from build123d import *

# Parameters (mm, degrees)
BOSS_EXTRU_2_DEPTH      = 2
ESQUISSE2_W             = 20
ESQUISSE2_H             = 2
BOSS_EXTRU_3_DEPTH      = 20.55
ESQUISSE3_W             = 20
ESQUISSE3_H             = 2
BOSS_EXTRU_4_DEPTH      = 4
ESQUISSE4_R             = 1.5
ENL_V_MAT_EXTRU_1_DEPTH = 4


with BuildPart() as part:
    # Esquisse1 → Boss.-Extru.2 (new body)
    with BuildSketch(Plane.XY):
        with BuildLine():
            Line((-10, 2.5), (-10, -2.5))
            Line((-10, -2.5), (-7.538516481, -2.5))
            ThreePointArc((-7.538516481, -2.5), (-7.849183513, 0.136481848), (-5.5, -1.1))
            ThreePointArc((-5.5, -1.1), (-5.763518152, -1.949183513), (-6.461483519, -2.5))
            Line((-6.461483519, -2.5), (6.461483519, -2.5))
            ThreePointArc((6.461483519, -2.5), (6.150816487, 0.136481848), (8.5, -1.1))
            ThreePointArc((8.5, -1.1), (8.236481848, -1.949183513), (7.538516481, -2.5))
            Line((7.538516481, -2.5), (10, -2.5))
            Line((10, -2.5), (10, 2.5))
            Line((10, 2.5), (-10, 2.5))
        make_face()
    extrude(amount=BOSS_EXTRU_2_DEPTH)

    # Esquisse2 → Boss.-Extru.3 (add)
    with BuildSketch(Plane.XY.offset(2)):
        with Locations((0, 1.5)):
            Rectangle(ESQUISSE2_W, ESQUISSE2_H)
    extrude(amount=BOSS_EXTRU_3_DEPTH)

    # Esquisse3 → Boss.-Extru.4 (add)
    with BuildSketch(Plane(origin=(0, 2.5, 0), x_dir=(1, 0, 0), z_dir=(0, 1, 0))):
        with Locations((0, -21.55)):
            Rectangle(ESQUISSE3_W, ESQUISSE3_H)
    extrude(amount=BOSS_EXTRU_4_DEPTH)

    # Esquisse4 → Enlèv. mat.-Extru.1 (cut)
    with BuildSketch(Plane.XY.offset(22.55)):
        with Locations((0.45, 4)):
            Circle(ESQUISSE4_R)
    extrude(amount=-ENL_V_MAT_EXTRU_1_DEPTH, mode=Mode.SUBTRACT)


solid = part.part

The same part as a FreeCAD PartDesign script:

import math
import FreeCAD as App
import Part
import Sketcher
from FreeCAD import Vector
Q = App.Units.Quantity


def add_polygon(sketch, points):
    """Adds a closed chain of lines whose ends are joined by coincident constraints."""
    first, n = sketch.GeometryCount, len(points)
    for a, b in zip(points, points[1:] + points[:1]):
        sketch.addGeometry(Part.LineSegment(App.Vector(*a, 0), App.Vector(*b, 0)), False)
    for i in range(n):
        sketch.addConstraint(Sketcher.Constraint("Coincident", first + i, 2, first + (i + 1) % n, 1))

doc = App.newDocument("Part")
body = doc.addObject("PartDesign::Body", "Body")

sketch1 = body.newObject("Sketcher::SketchObject", "Sketch")
sketch1.AttachmentSupport = (doc.getObject("XY_Plane"), [""])
sketch1.MapMode = "FlatFace"
sketch1.addGeometry(Part.LineSegment(Vector(-10, 2.5, 0), Vector(-10, -2.5, 0)), False)
sketch1.addGeometry(Part.LineSegment(Vector(-10, -2.5, 0), Vector(-7.5, -2.5, 0)), False)
sketch1.addGeometry(Part.ArcOfCircle(Part.Circle(Vector(-7, -1.1, 0), Vector(0, 0, 1), 1.5), math.radians(0), math.radians(249)), False)
sketch1.addGeometry(Part.ArcOfCircle(Part.Circle(Vector(-7, -1.1, 0), Vector(0, 0, 1), 1.5), math.radians(-69), math.radians(0)), False)
sketch1.addGeometry(Part.LineSegment(Vector(-6.5, -2.5, 0), Vector(6.5, -2.5, 0)), False)
sketch1.addGeometry(Part.ArcOfCircle(Part.Circle(Vector(7, -1.1, 0), Vector(0, 0, 1), 1.5), math.radians(0), math.radians(249)), False)
sketch1.addGeometry(Part.ArcOfCircle(Part.Circle(Vector(7, -1.1, 0), Vector(0, 0, 1), 1.5), math.radians(-69), math.radians(0)), False)
sketch1.addGeometry(Part.LineSegment(Vector(7.5, -2.5, 0), Vector(10, -2.5, 0)), False)
sketch1.addGeometry(Part.LineSegment(Vector(10, -2.5, 0), Vector(10, 2.5, 0)), False)
sketch1.addGeometry(Part.LineSegment(Vector(10, 2.5, 0), Vector(-10, 2.5, 0)), False)
sketch1.addConstraint(Sketcher.Constraint("Coincident", 0, 2, 1, 1))
sketch1.addConstraint(Sketcher.Constraint("Coincident", 1, 2, 2, 2))
sketch1.addConstraint(Sketcher.Constraint("Tangent", 2, 1, 3, 2))
sketch1.addConstraint(Sketcher.Constraint("Coincident", 3, 1, 4, 1))
sketch1.addConstraint(Sketcher.Constraint("Coincident", 4, 2, 5, 2))
sketch1.addConstraint(Sketcher.Constraint("Tangent", 5, 1, 6, 2))
sketch1.addConstraint(Sketcher.Constraint("Coincident", 6, 1, 7, 1))
sketch1.addConstraint(Sketcher.Constraint("Coincident", 7, 2, 8, 1))
sketch1.addConstraint(Sketcher.Constraint("Coincident", 8, 2, 9, 1))
sketch1.addConstraint(Sketcher.Constraint("Coincident", 9, 2, 0, 1))
sketch1.addConstraint(Sketcher.Constraint("Vertical", 0))
sketch1.addConstraint(Sketcher.Constraint("Horizontal", 1))
sketch1.addConstraint(Sketcher.Constraint("Horizontal", 4))
sketch1.addConstraint(Sketcher.Constraint("Horizontal", 7))
sketch1.addConstraint(Sketcher.Constraint("Vertical", 8))
sketch1.addConstraint(Sketcher.Constraint("Horizontal", 9))
sketch1.addConstraint(Sketcher.Constraint("Equal", 2, 3))
sketch1.addConstraint(Sketcher.Constraint("Equal", 3, 5))
sketch1.addConstraint(Sketcher.Constraint("Equal", 5, 6))
sketch1.addConstraint(Sketcher.Constraint("Symmetric", 0, 2, 8, 2, -1, 1))
sketch1.addConstraint(Sketcher.Constraint("Symmetric", 2, 3, 5, 3, -2))
sketch1.addConstraint(Sketcher.Constraint("Horizontal", 6, 3, 2, 1))
sketch1.addConstraint(Sketcher.Constraint("Horizontal", 1, 2, 3, 1))
sketch1.addConstraint(Sketcher.Constraint("Horizontal", 2, 1, 5, 1))
sketch1.addConstraint(Sketcher.Constraint("Horizontal", 4, 2, 6, 1))
sketch1.addConstraint(Sketcher.Constraint("Radius", 2, Q("1.5 mm")))
sketch1.addConstraint(Sketcher.Constraint("DistanceX", 9, 2, 9, 1, Q("20 mm")))
sketch1.addConstraint(Sketcher.Constraint("DistanceY", 0, 2, 0, 1, Q("5 mm")))
sketch1.addConstraint(Sketcher.Constraint("DistanceX", 2, 3, -1, 1, Q("7 mm")))
sketch1.addConstraint(Sketcher.Constraint("DistanceY", 2, 3, -1, 1, Q("1.1 mm")))
pad1 = body.newObject("PartDesign::Pad", "Pad")
pad1.Profile = sketch1
pad1.Length = 2

sketch2 = body.newObject("Sketcher::SketchObject", "Sketch001")
sketch2.AttachmentSupport = (doc.getObject("XY_Plane"), [""])
sketch2.MapMode = "FlatFace"
sketch2.AttachmentOffset = App.Placement(Vector(0, 0, 2), App.Rotation())
add_polygon(sketch2, [(-10, 2.5), (-10, 0.5), (10, 0.5), (10, 2.5)])
sketch2.addConstraint(Sketcher.Constraint("Vertical", 0))
sketch2.addConstraint(Sketcher.Constraint("Horizontal", 1))
sketch2.addConstraint(Sketcher.Constraint("Vertical", 2))
sketch2.addConstraint(Sketcher.Constraint("Horizontal", 3))
sketch2.addConstraint(Sketcher.Constraint("DistanceX", 1, 1, 1, 2, Q("20 mm")))
sketch2.addConstraint(Sketcher.Constraint("DistanceY", 0, 2, 0, 1, Q("2 mm")))
sketch2.addConstraint(Sketcher.Constraint("DistanceX", 0, 2, -1, 1, Q("10 mm")))
sketch2.addConstraint(Sketcher.Constraint("DistanceY", -1, 1, 0, 2, Q("0.5 mm")))
pad2 = body.newObject("PartDesign::Pad", "Pad001")
pad2.Profile = sketch2
pad2.Length = 20.55

sketch3 = body.newObject("Sketcher::SketchObject", "Sketch002")
sketch3.AttachmentSupport = (doc.getObject("XZ_Plane"), [""])
sketch3.MapMode = "FlatFace"
sketch3.AttachmentOffset = App.Placement(Vector(0, 0, -2.5), App.Rotation())
add_polygon(sketch3, [(-10, 20.6), (-10, 22.6), (10, 22.6), (10, 20.6)])
sketch3.addConstraint(Sketcher.Constraint("Vertical", 0))
sketch3.addConstraint(Sketcher.Constraint("Horizontal", 1))
sketch3.addConstraint(Sketcher.Constraint("Vertical", 2))
sketch3.addConstraint(Sketcher.Constraint("Horizontal", 3))
sketch3.addConstraint(Sketcher.Constraint("DistanceX", 1, 1, 1, 2, Q("20 mm")))
sketch3.addConstraint(Sketcher.Constraint("DistanceY", 0, 1, 0, 2, Q("2 mm")))
sketch3.addConstraint(Sketcher.Constraint("DistanceX", 0, 2, -1, 1, Q("10 mm")))
sketch3.addConstraint(Sketcher.Constraint("DistanceY", -1, 1, 0, 2, Q("22.55 mm")))
pad3 = body.newObject("PartDesign::Pad", "Pad002")
pad3.Profile = sketch3
pad3.Length = 4
pad3.Reversed = True

sketch4 = body.newObject("Sketcher::SketchObject", "Sketch003")
sketch4.AttachmentSupport = (doc.getObject("XY_Plane"), [""])
sketch4.MapMode = "FlatFace"
sketch4.AttachmentOffset = App.Placement(Vector(0, 0, 22.55), App.Rotation())
sketch4.addGeometry(Part.Circle(Vector(0.5, 4, 0), Vector(0, 0, 1), 1.5), False)
sketch4.addConstraint(Sketcher.Constraint("Diameter", 0, Q("3 mm")))
sketch4.addConstraint(Sketcher.Constraint("DistanceY", -1, 1, 0, 3, Q("4 mm")))
sketch4.addConstraint(Sketcher.Constraint("DistanceX", -1, 1, 0, 3, Q("0.45 mm")))
pocket1 = body.newObject("PartDesign::Pocket", "Pocket")
pocket1.Profile = sketch4
pocket1.Length = 4

doc.recompute()
